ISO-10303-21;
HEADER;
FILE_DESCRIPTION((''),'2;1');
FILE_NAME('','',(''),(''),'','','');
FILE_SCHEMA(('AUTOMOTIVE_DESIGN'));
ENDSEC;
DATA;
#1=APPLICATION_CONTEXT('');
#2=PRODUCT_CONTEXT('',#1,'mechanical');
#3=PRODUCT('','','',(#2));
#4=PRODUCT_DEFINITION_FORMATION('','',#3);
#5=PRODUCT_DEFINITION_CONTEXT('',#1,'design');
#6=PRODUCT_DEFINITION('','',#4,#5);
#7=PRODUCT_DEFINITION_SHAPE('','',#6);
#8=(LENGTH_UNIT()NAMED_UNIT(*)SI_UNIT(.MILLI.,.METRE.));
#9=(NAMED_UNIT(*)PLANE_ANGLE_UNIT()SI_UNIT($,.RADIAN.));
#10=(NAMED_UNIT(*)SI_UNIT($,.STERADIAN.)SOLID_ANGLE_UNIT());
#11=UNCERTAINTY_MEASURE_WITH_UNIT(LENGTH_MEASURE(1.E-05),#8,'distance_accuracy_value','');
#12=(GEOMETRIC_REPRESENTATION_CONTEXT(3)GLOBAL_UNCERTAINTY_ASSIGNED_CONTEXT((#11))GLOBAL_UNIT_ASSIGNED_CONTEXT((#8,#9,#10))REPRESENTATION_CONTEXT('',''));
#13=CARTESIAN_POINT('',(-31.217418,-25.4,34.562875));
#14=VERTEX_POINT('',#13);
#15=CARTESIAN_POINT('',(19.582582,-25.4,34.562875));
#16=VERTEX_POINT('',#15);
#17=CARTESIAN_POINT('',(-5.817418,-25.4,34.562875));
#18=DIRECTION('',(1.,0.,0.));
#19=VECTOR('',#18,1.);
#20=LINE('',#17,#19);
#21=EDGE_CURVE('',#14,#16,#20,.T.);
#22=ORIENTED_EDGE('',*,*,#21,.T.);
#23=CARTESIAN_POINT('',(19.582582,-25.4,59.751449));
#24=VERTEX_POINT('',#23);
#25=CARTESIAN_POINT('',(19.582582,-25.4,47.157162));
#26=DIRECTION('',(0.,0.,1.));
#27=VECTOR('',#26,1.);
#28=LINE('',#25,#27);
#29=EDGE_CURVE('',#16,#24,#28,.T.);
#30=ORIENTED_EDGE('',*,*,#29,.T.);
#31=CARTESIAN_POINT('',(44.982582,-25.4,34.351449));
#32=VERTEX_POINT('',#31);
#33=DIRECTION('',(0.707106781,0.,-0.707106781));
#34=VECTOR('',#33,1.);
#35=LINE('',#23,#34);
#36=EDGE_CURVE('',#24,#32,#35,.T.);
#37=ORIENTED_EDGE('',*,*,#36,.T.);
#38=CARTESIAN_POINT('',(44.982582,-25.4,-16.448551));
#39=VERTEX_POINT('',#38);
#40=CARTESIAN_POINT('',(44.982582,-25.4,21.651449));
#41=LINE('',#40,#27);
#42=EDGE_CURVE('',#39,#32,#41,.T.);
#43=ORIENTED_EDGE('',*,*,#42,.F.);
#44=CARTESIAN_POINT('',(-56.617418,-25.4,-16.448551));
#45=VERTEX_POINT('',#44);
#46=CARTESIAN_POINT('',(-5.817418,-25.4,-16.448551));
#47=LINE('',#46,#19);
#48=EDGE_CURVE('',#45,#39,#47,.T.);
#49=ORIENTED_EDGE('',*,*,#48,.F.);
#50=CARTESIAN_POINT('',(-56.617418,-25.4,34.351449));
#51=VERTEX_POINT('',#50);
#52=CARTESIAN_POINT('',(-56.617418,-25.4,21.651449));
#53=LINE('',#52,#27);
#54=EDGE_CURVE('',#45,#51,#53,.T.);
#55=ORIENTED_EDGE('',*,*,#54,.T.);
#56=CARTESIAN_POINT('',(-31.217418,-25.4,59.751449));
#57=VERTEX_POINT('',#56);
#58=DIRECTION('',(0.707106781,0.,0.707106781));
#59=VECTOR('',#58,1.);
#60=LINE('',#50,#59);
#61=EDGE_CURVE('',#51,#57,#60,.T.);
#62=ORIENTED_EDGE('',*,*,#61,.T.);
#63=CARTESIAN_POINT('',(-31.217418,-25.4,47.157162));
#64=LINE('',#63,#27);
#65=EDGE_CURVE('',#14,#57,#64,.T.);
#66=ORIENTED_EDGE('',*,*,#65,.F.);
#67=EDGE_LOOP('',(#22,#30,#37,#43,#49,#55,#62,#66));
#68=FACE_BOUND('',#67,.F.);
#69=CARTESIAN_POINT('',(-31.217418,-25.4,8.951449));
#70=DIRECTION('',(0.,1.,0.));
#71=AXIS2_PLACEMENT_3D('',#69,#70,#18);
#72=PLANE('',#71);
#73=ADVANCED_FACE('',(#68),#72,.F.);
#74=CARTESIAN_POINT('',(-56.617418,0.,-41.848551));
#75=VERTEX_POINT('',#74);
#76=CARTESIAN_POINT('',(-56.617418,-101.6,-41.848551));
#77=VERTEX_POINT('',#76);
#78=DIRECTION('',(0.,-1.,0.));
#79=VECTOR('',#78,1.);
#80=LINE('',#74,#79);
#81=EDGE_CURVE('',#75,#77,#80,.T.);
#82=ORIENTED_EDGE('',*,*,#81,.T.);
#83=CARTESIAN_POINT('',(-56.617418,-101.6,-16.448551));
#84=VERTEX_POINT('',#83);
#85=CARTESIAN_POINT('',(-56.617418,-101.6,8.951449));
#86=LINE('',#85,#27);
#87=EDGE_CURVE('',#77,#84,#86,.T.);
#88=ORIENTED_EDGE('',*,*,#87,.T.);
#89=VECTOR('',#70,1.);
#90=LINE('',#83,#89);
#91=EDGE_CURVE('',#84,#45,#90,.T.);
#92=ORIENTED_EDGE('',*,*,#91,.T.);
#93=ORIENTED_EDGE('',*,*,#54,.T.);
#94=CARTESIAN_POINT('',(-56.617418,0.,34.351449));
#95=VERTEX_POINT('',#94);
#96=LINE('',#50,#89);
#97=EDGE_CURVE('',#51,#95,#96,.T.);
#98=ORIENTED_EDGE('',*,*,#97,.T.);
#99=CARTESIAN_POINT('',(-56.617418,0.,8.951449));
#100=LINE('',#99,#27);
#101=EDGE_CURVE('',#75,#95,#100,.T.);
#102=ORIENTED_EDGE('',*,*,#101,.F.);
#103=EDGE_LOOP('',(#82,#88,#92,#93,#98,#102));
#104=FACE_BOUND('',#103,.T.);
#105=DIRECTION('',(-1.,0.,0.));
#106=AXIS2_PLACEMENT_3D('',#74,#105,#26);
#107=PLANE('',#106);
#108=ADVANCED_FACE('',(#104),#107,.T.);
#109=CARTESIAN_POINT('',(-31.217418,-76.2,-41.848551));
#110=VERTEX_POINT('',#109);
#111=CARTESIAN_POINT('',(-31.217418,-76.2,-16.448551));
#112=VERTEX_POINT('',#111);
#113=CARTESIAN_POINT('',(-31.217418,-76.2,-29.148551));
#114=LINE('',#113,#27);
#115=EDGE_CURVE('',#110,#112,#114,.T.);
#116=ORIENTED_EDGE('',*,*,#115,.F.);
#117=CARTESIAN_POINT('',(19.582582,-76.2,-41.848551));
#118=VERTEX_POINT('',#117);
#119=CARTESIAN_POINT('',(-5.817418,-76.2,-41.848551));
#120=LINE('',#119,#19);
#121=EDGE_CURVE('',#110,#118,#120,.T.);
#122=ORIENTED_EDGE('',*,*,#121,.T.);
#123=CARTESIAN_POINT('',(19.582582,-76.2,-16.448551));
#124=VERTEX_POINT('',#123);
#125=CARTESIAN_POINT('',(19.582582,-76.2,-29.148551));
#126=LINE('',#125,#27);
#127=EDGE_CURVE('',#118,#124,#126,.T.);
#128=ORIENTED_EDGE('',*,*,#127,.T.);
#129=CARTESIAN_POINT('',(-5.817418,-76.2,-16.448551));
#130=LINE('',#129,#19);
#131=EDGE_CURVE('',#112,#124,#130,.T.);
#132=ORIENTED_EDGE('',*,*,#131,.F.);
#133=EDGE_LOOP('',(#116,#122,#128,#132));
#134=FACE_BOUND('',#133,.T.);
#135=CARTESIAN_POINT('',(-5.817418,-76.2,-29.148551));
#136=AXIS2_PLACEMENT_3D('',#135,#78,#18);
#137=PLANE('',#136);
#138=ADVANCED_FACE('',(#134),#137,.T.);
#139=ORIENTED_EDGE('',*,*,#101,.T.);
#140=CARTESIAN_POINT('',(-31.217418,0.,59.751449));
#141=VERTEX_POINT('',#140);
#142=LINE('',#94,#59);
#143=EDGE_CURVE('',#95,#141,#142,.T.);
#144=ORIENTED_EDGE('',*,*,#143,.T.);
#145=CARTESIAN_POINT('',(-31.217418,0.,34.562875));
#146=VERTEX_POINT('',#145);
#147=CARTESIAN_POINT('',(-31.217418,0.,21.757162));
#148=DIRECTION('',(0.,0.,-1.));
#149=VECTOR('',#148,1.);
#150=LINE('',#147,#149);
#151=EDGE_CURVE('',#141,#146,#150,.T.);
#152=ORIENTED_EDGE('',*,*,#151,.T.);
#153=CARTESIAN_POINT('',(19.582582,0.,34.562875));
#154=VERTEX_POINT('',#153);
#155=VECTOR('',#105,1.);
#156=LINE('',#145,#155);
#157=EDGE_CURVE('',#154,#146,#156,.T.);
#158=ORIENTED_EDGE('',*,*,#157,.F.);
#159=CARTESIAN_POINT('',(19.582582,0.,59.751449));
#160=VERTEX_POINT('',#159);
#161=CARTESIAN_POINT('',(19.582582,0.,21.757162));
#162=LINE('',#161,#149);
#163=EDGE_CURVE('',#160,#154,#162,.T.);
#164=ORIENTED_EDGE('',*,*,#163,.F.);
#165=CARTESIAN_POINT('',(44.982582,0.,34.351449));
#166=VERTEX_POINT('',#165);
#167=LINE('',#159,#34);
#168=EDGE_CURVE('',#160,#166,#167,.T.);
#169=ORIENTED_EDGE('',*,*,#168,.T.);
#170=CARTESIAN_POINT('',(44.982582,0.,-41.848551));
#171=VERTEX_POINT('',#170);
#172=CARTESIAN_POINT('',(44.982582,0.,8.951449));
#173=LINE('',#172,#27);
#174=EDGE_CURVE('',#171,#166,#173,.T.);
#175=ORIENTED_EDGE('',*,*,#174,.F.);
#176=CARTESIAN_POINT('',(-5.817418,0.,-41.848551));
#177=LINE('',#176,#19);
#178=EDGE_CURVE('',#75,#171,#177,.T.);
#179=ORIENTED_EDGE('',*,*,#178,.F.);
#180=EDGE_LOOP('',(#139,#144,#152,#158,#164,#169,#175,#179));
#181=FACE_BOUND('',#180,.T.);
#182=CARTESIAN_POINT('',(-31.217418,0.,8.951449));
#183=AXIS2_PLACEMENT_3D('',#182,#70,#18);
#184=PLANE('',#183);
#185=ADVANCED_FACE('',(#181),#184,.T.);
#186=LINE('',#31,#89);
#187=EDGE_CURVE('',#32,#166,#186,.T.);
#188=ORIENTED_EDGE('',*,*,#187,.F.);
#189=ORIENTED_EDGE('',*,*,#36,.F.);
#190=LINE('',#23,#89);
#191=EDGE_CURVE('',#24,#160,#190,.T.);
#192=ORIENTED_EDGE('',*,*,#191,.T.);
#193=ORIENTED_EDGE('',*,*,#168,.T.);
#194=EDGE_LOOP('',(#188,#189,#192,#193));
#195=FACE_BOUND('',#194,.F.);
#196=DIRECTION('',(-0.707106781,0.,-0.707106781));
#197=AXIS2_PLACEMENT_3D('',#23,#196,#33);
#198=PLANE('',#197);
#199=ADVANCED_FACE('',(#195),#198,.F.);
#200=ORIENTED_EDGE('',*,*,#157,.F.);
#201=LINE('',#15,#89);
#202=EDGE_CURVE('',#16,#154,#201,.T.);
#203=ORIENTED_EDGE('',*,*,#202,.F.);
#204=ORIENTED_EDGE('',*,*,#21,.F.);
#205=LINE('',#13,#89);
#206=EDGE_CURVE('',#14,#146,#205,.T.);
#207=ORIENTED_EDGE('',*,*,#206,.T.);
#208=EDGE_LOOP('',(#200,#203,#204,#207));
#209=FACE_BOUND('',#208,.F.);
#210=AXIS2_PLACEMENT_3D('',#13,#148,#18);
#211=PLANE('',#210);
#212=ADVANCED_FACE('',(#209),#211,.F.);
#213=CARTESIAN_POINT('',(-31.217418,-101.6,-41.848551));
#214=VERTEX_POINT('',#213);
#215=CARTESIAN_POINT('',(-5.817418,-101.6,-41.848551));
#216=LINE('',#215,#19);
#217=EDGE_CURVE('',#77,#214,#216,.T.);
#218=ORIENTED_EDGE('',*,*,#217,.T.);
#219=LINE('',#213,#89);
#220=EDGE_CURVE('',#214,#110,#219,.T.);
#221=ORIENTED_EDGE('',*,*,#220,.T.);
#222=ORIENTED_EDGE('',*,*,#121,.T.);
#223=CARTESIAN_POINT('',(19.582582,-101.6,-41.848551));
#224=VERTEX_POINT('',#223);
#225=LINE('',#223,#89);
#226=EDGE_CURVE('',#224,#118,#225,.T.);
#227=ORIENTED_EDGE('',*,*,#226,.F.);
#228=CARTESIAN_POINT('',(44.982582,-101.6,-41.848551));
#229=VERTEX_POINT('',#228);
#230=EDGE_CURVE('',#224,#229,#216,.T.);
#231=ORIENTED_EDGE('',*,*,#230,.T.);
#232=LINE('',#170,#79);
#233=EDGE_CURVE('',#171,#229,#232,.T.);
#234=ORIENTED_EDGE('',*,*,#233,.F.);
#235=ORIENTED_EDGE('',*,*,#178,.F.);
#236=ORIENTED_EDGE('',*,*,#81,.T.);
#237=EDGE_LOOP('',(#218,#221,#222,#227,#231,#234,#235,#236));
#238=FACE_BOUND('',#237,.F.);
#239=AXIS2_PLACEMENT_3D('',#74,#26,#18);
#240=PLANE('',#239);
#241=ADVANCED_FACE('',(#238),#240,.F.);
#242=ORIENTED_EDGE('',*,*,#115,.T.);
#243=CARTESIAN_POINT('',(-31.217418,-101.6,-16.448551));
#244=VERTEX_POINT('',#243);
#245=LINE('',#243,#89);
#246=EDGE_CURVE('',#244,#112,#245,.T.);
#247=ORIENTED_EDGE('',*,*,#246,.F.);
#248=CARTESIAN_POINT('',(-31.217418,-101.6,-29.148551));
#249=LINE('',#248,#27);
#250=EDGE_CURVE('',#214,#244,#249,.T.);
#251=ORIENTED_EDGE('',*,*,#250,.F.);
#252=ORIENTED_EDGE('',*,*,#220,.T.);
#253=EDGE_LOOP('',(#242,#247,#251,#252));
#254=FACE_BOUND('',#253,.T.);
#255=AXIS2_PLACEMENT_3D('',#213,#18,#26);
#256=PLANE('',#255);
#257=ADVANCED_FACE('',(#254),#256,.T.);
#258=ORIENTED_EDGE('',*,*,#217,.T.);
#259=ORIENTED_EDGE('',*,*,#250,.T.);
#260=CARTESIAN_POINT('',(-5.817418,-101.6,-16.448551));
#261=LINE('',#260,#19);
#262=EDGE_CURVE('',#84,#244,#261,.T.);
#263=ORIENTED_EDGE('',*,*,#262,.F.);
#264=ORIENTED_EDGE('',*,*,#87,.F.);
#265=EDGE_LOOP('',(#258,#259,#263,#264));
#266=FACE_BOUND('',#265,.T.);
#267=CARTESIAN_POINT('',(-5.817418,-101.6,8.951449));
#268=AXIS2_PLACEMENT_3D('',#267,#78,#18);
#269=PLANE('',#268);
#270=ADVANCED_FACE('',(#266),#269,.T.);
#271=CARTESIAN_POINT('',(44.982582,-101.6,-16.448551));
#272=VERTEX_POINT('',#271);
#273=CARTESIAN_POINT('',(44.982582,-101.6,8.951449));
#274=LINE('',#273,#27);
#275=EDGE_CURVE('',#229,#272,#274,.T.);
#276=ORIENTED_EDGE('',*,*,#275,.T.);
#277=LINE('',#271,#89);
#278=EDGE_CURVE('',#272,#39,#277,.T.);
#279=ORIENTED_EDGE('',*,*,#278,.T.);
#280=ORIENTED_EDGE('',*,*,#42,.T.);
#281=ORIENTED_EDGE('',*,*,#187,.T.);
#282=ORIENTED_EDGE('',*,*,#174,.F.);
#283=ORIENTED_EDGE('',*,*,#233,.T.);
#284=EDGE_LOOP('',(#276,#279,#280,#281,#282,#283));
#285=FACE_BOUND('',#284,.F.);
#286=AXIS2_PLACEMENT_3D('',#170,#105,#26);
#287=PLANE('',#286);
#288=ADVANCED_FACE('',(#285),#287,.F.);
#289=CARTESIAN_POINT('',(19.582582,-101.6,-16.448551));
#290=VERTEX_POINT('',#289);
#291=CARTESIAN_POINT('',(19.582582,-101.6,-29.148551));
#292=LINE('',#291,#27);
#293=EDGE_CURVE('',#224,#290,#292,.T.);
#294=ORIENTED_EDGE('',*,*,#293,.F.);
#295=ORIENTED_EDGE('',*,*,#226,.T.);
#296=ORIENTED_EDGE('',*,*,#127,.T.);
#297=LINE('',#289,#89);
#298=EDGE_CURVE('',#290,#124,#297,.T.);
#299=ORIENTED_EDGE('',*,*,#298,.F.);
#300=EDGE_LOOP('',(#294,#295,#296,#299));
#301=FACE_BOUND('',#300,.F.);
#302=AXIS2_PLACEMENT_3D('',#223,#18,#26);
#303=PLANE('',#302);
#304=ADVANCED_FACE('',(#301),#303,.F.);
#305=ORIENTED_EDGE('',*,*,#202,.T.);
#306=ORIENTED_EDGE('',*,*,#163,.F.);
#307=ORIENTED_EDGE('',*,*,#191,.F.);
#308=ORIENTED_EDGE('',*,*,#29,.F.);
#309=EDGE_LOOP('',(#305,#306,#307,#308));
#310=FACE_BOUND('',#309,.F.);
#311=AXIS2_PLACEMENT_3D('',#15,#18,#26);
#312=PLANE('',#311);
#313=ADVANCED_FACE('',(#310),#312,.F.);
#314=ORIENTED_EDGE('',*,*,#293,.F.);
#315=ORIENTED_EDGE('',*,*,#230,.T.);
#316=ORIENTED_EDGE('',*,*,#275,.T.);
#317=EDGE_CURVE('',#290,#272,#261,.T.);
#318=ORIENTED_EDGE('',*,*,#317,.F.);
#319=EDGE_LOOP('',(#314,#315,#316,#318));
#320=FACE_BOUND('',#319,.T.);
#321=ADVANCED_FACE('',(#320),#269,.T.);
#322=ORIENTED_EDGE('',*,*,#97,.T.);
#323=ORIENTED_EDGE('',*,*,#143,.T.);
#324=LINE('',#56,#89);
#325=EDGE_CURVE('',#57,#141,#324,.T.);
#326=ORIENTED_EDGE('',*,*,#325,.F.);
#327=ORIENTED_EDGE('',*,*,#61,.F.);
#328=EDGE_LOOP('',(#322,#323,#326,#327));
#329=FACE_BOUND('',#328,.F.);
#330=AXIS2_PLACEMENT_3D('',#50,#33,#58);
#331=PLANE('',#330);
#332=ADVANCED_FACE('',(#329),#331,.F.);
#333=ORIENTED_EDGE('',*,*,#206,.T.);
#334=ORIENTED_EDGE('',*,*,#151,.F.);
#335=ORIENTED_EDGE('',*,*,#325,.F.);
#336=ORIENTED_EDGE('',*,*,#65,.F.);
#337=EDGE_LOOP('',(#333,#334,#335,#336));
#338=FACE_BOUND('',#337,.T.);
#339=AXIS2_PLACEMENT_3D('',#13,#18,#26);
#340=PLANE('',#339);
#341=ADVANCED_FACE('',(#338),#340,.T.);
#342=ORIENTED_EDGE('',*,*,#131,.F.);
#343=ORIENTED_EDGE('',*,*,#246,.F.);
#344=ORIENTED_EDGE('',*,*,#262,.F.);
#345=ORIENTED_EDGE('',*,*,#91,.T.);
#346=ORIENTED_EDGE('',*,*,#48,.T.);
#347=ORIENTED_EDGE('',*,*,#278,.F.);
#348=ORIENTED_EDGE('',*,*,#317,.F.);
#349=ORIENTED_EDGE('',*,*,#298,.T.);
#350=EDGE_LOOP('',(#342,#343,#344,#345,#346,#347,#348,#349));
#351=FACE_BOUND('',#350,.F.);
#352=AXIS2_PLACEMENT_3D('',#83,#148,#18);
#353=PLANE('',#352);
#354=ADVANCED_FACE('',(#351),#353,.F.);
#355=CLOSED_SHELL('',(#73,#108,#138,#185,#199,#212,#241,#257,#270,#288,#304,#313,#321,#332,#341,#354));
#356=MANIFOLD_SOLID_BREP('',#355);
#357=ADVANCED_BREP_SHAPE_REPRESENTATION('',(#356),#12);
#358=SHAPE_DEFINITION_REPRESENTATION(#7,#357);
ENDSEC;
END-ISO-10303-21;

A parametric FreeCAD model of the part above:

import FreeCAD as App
import Part
import Sketcher

V = App.Vector
Q = App.Units.Quantity


def add_polygon(sketch, points):
    """Adds a closed chain of lines whose ends are joined by coincident constraints."""
    first, n = sketch.GeometryCount, len(points)
    for a, b in zip(points, points[1:] + points[:1]):
        sketch.addGeometry(Part.LineSegment(App.Vector(*a, 0), App.Vector(*b, 0)), False)
    for i in range(n):
        sketch.addConstraint(Sketcher.Constraint("Coincident", first + i, 2, first + (i + 1) % n, 1))

doc = App.newDocument("Part")
body = doc.addObject("PartDesign::Body", "Body")

# Sketch on XZ plane
sketch1 = body.newObject("Sketcher::SketchObject", "Sketch")
sketch1.AttachmentSupport = (doc.getObject("XZ_Plane"), [""])
sketch1.MapMode = "FlatFace"
add_polygon(sketch1, [(-56.617418, 59.751449), (-56.617418, -41.848551), (44.982582, -41.848551), (44.982582, 59.751449)])  # lines 0-3
sketch1.addConstraint([
    Sketcher.Constraint("Vertical", 0),
    Sketcher.Constraint("Horizontal", 1),
    Sketcher.Constraint("Vertical", 2),
    Sketcher.Constraint("Horizontal", 3),
    Sketcher.Constraint("Equal", 3, 0),
    Sketcher.Constraint("DistanceX", 1, 1, 1, 2, Q("4 in")),
    Sketcher.Constraint("DistanceY", 0, 2, -1, 1, 41.848551),
    Sketcher.Constraint("DistanceX", 0, 2, -1, 1, 56.617418),
])
pad1 = body.newObject("PartDesign::Pad", "Pad")
pad1.Profile = sketch1
pad1.Length = Q("4 in")

# Sketch on XZ plane
sketch2 = body.newObject("Sketcher::SketchObject", "Sketch001")
sketch2.AttachmentSupport = (doc.getObject("XZ_Plane"), [""])
sketch2.MapMode = "FlatFace"
sketch2.AttachmentOffset = App.Placement(V(0, 0, 4 * 25.4), App.Rotation())
add_polygon(sketch2, [(-31.217418, -16.448551), (-31.217418, -41.848551), (19.582582, -41.848551), (19.582582, -16.448551)])  # lines 0-3
sketch2.addConstraint([
    Sketcher.Constraint("Vertical", 0),
    Sketcher.Constraint("Horizontal", 1),
    Sketcher.Constraint("Vertical", 2),
    Sketcher.Constraint("Horizontal", 3),
    Sketcher.Constraint("DistanceX", 1, 1, 1, 2, Q("2 in")),
    Sketcher.Constraint("DistanceY", 0, 2, 0, 1, Q("1 in")),
    Sketcher.Constraint("DistanceY", 0, 2, -1, 1, 41.848551),
    Sketcher.Constraint("DistanceX", -1, 1, 1, 2, 19.582582),
])
pocket1 = body.newObject("PartDesign::Pocket", "Pocket")
pocket1.Profile = sketch2
pocket1.Length = Q("1 in")

# Sketch on XZ plane
sketch3 = body.newObject("Sketcher::SketchObject", "Sketch002")
sketch3.AttachmentSupport = (doc.getObject("XZ_Plane"), [""])
sketch3.MapMode = "FlatFace"
sketch3.AttachmentOffset = App.Placement(V(0, 0, 4 * 25.4), App.Rotation())
add_polygon(sketch3, [(-56.617418, 59.751449), (-56.617418, -16.448551), (44.982582, -16.448551), (44.982582, 59.751449)])  # lines 0-3
sketch3.addConstraint([
    Sketcher.Constraint("Vertical", 0),
    Sketcher.Constraint("Horizontal", 1),
    Sketcher.Constraint("Vertical", 2),
    Sketcher.Constraint("Horizontal", 3),
    Sketcher.Constraint("DistanceX", 1, 1, 1, 2, Q("4 in")),
    Sketcher.Constraint("DistanceY", 0, 2, 0, 1, Q("3 in")),
    Sketcher.Constraint("DistanceY", 0, 2, -1, 1, 16.448551),
    Sketcher.Constraint("DistanceX", 0, 2, -1, 1, 56.617418),
])
pocket2 = body.newObject("PartDesign::Pocket", "Pocket001")
pocket2.Profile = sketch3
pocket2.Length = Q("3 in")

# Sketch on XZ plane
sketch4 = body.newObject("Sketcher::SketchObject", "Sketch003")
sketch4.AttachmentSupport = (doc.getObject("XZ_Plane"), [""])
sketch4.MapMode = "FlatFace"
sketch4.AttachmentOffset = App.Placement(V(0, 0, 1 * 25.4), App.Rotation())
add_polygon(sketch4, [(44.982582, 59.751449), (19.582582, 59.751449), (44.982582, 34.351449)])  # lines 0-2
add_polygon(sketch4, [(-31.217418, 59.751449), (-56.617418, 59.751449), (-56.617418, 34.351449)])  # lines 3-5
sketch4.addConstraint([
    Sketcher.Constraint("Horizontal", 0),
    Sketcher.Constraint("Vertical", 2),
    Sketcher.Constraint("Horizontal", 3),
    Sketcher.Constraint("Vertical", 4),
    Sketcher.Constraint("Perpendicular", 1, 5),
    Sketcher.Constraint("Horizontal", 2, 2, 3, 2),
    Sketcher.Constraint("Horizontal", 1, 2, 4, 2),
    Sketcher.Constraint("Equal", 0, 3),
    Sketcher.Constraint("DistanceX", 0, 2, 0, 1, Q("1 in")),
    Sketcher.Constraint("DistanceX", 3, 2, 0, 2, Q("3 in")),
    Sketcher.Constraint("DistanceX", -1, 1, 0, 2, 19.582582),
    Sketcher.Constraint("DistanceY", -1, 1, 0, 2, 59.751449),
])
pocket3 = body.newObject("PartDesign::Pocket", "Pocket002")
pocket3.Profile = sketch4
pocket3.Length = Q("1 in")

# Sketch on XZ plane
sketch5 = body.newObject("Sketcher::SketchObject", "Sketch004")
sketch5.AttachmentSupport = (doc.getObject("XZ_Plane"), [""])
sketch5.MapMode = "FlatFace"
sketch5.AttachmentOffset = App.Placement(V(0, 0, 1 * 25.4), App.Rotation())
add_polygon(sketch5, [(-31.217418, 59.751449), (-31.217418, 8.951449), (19.582582, 8.951449), (19.582582, 59.751449)])  # lines 0-3
sketch5.addConstraint([
    Sketcher.Constraint("Vertical", 0),
    Sketcher.Constraint("Horizontal", 1),
    Sketcher.Constraint("Vertical", 2),
    Sketcher.Constraint("Horizontal", 3),
    Sketcher.Constraint("Equal", 3, 0),
    Sketcher.Constraint("DistanceX", 1, 1, 1, 2, Q("2 in")),
    Sketcher.Constraint("DistanceY", -1, 1, 0, 2, 8.951449),
    Sketcher.Constraint("DistanceX", -1, 1, 1, 2, 19.582582),
])
pocket4 = body.newObject("PartDesign::Pocket", "Pocket003")
pocket4.Profile = sketch5
pocket4.Length = Q("1 in")

# Sketch on XY plane
sketch6 = body.newObject("Sketcher::SketchObject", "Sketch005")
sketch6.AttachmentSupport = (doc.getObject("XY_Plane"), [""])
sketch6.MapMode = "FlatFace"
sketch6.AttachmentOffset = App.Placement(V(0, 0, 8.951449), App.Rotation())
add_polygon(sketch6, [(-31.217418, 0), (-31.217418, -25.4), (19.582582, -25.4), (19.582582, 0)])  # lines 0-3
sketch6.addConstraint([
    Sketcher.Constraint("Vertical", 0),
    Sketcher.Constraint("Horizontal", 1),
    Sketcher.Constraint("Vertical", 2),
    Sketcher.Constraint("Horizontal", 3),
    Sketcher.Constraint("PointOnObject", 2, 2, -1),
    Sketcher.Constraint("DistanceX", 1, 1, 1, 2, Q("2 in")),
    Sketcher.Constraint("DistanceY", 0, 2, 0, 1, Q("1 in")),
    Sketcher.Constraint("DistanceX", -1, 1, 1, 2, 19.582582),
])
pad2 = body.newObject("PartDesign::Pad", "Pad001")
pad2.Profile = sketch6
pad2.Length = Q("2 in")

# Sketch on XZ plane
sketch7 = body.newObject("Sketcher::SketchObject", "Sketch006")
sketch7.AttachmentSupport = (doc.getObject("XZ_Plane"), [""])
sketch7.MapMode = "FlatFace"
sketch7.AttachmentOffset = App.Placement(V(0, 0, 1 * 25.4), App.Rotation())
add_polygon(sketch7, [(-31.217418, 59.751449), (-31.217418, 34.562875), (19.582582, 34.562875), (19.582582, 59.751449)])  # lines 0-3
sketch7.addConstraint([
    Sketcher.Constraint("Vertical", 0),
    Sketcher.Constraint("Horizontal", 1),
    Sketcher.Constraint("Vertical", 2),
    Sketcher.Constraint("Horizontal", 3),
    Sketcher.Constraint("DistanceX", 1, 1, 1, 2, Q("2 in")),
    Sketcher.Constraint("DistanceY", 0, 2, 0, 1, 25.188574),
    Sketcher.Constraint("DistanceX", -1, 1, 1, 2, 19.582582),
    Sketcher.Constraint("DistanceY", -1, 1, 2, 2, 59.751449),
])
pocket5 = body.newObject("PartDesign::Pocket", "Pocket004")
pocket5.Profile = sketch7
pocket5.Length = Q("2.34 in")

doc.recompute()
